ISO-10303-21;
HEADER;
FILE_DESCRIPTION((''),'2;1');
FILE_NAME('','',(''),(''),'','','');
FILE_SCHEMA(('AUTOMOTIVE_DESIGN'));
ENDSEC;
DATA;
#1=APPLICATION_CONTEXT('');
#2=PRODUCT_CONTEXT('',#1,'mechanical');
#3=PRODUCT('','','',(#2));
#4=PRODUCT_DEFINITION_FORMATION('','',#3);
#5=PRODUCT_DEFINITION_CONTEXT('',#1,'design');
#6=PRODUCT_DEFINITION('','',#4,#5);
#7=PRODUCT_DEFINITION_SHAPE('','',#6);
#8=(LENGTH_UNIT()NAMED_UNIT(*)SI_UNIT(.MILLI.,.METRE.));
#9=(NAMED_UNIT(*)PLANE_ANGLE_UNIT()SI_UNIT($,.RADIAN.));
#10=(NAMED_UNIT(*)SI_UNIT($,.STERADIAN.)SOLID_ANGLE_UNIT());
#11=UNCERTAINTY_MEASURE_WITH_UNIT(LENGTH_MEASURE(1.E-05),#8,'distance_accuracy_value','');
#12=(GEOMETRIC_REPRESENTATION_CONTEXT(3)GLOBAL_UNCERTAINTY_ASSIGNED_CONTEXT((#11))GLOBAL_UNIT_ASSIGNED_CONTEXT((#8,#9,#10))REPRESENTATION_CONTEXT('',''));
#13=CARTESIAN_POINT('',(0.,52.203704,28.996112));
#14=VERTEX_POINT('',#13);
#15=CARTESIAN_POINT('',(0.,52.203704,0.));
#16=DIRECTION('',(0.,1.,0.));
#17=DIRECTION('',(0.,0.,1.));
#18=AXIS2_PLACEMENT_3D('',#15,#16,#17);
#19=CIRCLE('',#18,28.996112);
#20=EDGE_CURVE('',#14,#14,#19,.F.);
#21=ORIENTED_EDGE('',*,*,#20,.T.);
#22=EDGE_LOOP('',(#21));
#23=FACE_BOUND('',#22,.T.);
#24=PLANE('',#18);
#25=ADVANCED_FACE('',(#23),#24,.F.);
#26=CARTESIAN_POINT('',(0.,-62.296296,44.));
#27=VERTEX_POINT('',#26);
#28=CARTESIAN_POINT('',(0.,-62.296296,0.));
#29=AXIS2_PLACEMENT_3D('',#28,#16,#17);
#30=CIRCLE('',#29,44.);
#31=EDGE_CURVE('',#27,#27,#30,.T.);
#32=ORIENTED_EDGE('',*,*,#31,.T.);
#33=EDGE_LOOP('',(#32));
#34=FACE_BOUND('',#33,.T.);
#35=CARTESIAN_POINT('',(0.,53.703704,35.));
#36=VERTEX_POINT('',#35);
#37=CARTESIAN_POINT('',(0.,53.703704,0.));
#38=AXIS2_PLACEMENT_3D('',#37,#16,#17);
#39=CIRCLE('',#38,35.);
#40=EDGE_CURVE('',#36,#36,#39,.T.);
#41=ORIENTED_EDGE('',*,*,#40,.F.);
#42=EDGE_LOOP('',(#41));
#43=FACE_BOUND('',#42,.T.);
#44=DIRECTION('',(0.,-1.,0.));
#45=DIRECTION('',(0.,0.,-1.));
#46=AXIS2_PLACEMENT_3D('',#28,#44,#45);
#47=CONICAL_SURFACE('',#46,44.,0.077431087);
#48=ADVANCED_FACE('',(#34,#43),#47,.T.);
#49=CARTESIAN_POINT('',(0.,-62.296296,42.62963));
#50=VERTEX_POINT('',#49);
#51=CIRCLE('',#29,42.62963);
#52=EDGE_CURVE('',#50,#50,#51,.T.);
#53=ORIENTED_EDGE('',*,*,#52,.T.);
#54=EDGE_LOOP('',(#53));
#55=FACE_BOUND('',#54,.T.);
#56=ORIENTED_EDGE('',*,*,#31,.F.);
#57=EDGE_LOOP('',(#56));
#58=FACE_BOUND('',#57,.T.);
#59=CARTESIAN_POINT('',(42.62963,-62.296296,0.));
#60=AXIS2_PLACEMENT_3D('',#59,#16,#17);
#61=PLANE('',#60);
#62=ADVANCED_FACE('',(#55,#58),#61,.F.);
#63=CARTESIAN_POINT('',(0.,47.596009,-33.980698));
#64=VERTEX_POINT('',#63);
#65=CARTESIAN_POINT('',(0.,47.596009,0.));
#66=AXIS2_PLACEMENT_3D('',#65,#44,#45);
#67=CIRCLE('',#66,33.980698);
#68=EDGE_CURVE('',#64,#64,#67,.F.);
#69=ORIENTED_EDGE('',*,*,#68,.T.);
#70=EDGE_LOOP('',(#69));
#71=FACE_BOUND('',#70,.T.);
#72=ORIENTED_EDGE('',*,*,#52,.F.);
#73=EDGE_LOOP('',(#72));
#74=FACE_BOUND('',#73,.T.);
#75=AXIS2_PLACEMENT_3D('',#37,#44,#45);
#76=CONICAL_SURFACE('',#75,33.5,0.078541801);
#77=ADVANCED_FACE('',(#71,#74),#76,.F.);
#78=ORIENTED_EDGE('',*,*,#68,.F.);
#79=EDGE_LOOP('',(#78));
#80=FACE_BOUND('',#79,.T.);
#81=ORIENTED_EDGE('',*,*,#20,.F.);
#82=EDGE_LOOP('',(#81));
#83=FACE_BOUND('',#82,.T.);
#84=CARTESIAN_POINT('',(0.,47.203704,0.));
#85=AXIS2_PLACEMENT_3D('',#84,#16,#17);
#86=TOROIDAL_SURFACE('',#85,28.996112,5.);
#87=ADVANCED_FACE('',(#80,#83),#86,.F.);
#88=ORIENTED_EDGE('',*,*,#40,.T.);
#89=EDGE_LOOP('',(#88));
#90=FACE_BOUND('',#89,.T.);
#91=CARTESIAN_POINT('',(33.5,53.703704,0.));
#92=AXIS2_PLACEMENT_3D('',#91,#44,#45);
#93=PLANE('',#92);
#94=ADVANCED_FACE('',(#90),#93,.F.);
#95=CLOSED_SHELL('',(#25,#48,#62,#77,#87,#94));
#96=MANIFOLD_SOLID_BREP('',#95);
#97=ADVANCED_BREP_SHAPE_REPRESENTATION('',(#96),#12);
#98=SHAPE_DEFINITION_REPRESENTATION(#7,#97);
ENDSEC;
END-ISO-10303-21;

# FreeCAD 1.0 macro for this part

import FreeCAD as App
import Part
import Sketcher
from FreeCAD import Vector
Q = App.Units.Quantity


def edges_at(feature, points):
    """Names of the edges that pass closest to the given points."""
    edges = feature.Shape.Edges
    near = lambda p: min(range(len(edges)), key=lambda i: edges[i].distToShape(Part.Vertex(*p))[0])
    return sorted({f"Edge{near(p) + 1}" for p in points})


def add_polygon(sketch, points):
    """Adds a closed chain of lines whose ends are joined by coincident constraints."""
    first, n = sketch.GeometryCount, len(points)
    for a, b in zip(points, points[1:] + points[:1]):
        sketch.addGeometry(Part.LineSegment(App.Vector(*a, 0), App.Vector(*b, 0)), False)
    for i in range(n):
        sketch.addConstraint(Sketcher.Constraint("Coincident", first + i, 2, first + (i + 1) % n, 1))

doc = App.newDocument("Part")
body = doc.addObject("PartDesign::Body", "Body")

sketch1 = body.newObject("Sketcher::SketchObject", "Sketch")
sketch1.AttachmentSupport = (doc.getObject("XY_Plane"), [""])
sketch1.MapMode = "FlatFace"
add_polygon(sketch1, [(44, -62.3), (35, 53.7), (33.5, 53.7), (42.6, -62.3)])
sketch1.addConstraint(Sketcher.Constraint("Horizontal", 1))
sketch1.addConstraint(Sketcher.Constraint("Horizontal", 3))
sketch1.addConstraint(Sketcher.Constraint("DistanceX", 1, 2, 1, 1, Q("1.5 mm")))
sketch1.addConstraint(Sketcher.Constraint("DistanceX", -1, 1, 0, 2, Q("35 mm")))
sketch1.addConstraint(Sketcher.Constraint("DistanceX", -1, 1, 3, 2, Q("44 mm")))
sketch1.addConstraint(Sketcher.Constraint("DistanceY", 2, 2, 0, 2, Q("116 mm")))
sketch1.addConstraint(Sketcher.Constraint("DistanceX", 3, 1, 3, 2, Q("1.37037 mm")))
sketch1.addConstraint(Sketcher.Constraint("DistanceY", -1, 1, 0, 2, Q("53.703704 mm")))
revolution = body.newObject("PartDesign::Revolution", "Revolution")
revolution.Profile = sketch1
revolution.ReferenceAxis = (sketch1, ["V_Axis"])
revolution.Angle = 360

sketch2 = body.newObject("Sketcher::SketchObject", "Sketch001")
sketch2.AttachmentSupport = (doc.getObject("XZ_Plane"), [""])
sketch2.MapMode = "FlatFace"
sketch2.AttachmentOffset = App.Placement(Vector(0, 0, -53.703704), App.Rotation())
sketch2.addGeometry(Part.Circle(Vector(0, 0, 0), Vector(0, 0, 1), 35), False)
sketch2.addConstraint(Sketcher.Constraint("Coincident", 0, 3, -1, 1))
sketch2.addConstraint(Sketcher.Constraint("Diameter", 0, Q("70 mm")))
pad1 = body.newObject("PartDesign::Pad", "Pad")
pad1.Profile = sketch2
pad1.Length = 1.5
doc.recompute()

fillet = body.newObject("PartDesign::Fillet", "Fillet")
fillet.Base = (pad1, edges_at(pad1, [(-33.618, 52.204, 0)]))
fillet.Radius = 5

doc.recompute()
